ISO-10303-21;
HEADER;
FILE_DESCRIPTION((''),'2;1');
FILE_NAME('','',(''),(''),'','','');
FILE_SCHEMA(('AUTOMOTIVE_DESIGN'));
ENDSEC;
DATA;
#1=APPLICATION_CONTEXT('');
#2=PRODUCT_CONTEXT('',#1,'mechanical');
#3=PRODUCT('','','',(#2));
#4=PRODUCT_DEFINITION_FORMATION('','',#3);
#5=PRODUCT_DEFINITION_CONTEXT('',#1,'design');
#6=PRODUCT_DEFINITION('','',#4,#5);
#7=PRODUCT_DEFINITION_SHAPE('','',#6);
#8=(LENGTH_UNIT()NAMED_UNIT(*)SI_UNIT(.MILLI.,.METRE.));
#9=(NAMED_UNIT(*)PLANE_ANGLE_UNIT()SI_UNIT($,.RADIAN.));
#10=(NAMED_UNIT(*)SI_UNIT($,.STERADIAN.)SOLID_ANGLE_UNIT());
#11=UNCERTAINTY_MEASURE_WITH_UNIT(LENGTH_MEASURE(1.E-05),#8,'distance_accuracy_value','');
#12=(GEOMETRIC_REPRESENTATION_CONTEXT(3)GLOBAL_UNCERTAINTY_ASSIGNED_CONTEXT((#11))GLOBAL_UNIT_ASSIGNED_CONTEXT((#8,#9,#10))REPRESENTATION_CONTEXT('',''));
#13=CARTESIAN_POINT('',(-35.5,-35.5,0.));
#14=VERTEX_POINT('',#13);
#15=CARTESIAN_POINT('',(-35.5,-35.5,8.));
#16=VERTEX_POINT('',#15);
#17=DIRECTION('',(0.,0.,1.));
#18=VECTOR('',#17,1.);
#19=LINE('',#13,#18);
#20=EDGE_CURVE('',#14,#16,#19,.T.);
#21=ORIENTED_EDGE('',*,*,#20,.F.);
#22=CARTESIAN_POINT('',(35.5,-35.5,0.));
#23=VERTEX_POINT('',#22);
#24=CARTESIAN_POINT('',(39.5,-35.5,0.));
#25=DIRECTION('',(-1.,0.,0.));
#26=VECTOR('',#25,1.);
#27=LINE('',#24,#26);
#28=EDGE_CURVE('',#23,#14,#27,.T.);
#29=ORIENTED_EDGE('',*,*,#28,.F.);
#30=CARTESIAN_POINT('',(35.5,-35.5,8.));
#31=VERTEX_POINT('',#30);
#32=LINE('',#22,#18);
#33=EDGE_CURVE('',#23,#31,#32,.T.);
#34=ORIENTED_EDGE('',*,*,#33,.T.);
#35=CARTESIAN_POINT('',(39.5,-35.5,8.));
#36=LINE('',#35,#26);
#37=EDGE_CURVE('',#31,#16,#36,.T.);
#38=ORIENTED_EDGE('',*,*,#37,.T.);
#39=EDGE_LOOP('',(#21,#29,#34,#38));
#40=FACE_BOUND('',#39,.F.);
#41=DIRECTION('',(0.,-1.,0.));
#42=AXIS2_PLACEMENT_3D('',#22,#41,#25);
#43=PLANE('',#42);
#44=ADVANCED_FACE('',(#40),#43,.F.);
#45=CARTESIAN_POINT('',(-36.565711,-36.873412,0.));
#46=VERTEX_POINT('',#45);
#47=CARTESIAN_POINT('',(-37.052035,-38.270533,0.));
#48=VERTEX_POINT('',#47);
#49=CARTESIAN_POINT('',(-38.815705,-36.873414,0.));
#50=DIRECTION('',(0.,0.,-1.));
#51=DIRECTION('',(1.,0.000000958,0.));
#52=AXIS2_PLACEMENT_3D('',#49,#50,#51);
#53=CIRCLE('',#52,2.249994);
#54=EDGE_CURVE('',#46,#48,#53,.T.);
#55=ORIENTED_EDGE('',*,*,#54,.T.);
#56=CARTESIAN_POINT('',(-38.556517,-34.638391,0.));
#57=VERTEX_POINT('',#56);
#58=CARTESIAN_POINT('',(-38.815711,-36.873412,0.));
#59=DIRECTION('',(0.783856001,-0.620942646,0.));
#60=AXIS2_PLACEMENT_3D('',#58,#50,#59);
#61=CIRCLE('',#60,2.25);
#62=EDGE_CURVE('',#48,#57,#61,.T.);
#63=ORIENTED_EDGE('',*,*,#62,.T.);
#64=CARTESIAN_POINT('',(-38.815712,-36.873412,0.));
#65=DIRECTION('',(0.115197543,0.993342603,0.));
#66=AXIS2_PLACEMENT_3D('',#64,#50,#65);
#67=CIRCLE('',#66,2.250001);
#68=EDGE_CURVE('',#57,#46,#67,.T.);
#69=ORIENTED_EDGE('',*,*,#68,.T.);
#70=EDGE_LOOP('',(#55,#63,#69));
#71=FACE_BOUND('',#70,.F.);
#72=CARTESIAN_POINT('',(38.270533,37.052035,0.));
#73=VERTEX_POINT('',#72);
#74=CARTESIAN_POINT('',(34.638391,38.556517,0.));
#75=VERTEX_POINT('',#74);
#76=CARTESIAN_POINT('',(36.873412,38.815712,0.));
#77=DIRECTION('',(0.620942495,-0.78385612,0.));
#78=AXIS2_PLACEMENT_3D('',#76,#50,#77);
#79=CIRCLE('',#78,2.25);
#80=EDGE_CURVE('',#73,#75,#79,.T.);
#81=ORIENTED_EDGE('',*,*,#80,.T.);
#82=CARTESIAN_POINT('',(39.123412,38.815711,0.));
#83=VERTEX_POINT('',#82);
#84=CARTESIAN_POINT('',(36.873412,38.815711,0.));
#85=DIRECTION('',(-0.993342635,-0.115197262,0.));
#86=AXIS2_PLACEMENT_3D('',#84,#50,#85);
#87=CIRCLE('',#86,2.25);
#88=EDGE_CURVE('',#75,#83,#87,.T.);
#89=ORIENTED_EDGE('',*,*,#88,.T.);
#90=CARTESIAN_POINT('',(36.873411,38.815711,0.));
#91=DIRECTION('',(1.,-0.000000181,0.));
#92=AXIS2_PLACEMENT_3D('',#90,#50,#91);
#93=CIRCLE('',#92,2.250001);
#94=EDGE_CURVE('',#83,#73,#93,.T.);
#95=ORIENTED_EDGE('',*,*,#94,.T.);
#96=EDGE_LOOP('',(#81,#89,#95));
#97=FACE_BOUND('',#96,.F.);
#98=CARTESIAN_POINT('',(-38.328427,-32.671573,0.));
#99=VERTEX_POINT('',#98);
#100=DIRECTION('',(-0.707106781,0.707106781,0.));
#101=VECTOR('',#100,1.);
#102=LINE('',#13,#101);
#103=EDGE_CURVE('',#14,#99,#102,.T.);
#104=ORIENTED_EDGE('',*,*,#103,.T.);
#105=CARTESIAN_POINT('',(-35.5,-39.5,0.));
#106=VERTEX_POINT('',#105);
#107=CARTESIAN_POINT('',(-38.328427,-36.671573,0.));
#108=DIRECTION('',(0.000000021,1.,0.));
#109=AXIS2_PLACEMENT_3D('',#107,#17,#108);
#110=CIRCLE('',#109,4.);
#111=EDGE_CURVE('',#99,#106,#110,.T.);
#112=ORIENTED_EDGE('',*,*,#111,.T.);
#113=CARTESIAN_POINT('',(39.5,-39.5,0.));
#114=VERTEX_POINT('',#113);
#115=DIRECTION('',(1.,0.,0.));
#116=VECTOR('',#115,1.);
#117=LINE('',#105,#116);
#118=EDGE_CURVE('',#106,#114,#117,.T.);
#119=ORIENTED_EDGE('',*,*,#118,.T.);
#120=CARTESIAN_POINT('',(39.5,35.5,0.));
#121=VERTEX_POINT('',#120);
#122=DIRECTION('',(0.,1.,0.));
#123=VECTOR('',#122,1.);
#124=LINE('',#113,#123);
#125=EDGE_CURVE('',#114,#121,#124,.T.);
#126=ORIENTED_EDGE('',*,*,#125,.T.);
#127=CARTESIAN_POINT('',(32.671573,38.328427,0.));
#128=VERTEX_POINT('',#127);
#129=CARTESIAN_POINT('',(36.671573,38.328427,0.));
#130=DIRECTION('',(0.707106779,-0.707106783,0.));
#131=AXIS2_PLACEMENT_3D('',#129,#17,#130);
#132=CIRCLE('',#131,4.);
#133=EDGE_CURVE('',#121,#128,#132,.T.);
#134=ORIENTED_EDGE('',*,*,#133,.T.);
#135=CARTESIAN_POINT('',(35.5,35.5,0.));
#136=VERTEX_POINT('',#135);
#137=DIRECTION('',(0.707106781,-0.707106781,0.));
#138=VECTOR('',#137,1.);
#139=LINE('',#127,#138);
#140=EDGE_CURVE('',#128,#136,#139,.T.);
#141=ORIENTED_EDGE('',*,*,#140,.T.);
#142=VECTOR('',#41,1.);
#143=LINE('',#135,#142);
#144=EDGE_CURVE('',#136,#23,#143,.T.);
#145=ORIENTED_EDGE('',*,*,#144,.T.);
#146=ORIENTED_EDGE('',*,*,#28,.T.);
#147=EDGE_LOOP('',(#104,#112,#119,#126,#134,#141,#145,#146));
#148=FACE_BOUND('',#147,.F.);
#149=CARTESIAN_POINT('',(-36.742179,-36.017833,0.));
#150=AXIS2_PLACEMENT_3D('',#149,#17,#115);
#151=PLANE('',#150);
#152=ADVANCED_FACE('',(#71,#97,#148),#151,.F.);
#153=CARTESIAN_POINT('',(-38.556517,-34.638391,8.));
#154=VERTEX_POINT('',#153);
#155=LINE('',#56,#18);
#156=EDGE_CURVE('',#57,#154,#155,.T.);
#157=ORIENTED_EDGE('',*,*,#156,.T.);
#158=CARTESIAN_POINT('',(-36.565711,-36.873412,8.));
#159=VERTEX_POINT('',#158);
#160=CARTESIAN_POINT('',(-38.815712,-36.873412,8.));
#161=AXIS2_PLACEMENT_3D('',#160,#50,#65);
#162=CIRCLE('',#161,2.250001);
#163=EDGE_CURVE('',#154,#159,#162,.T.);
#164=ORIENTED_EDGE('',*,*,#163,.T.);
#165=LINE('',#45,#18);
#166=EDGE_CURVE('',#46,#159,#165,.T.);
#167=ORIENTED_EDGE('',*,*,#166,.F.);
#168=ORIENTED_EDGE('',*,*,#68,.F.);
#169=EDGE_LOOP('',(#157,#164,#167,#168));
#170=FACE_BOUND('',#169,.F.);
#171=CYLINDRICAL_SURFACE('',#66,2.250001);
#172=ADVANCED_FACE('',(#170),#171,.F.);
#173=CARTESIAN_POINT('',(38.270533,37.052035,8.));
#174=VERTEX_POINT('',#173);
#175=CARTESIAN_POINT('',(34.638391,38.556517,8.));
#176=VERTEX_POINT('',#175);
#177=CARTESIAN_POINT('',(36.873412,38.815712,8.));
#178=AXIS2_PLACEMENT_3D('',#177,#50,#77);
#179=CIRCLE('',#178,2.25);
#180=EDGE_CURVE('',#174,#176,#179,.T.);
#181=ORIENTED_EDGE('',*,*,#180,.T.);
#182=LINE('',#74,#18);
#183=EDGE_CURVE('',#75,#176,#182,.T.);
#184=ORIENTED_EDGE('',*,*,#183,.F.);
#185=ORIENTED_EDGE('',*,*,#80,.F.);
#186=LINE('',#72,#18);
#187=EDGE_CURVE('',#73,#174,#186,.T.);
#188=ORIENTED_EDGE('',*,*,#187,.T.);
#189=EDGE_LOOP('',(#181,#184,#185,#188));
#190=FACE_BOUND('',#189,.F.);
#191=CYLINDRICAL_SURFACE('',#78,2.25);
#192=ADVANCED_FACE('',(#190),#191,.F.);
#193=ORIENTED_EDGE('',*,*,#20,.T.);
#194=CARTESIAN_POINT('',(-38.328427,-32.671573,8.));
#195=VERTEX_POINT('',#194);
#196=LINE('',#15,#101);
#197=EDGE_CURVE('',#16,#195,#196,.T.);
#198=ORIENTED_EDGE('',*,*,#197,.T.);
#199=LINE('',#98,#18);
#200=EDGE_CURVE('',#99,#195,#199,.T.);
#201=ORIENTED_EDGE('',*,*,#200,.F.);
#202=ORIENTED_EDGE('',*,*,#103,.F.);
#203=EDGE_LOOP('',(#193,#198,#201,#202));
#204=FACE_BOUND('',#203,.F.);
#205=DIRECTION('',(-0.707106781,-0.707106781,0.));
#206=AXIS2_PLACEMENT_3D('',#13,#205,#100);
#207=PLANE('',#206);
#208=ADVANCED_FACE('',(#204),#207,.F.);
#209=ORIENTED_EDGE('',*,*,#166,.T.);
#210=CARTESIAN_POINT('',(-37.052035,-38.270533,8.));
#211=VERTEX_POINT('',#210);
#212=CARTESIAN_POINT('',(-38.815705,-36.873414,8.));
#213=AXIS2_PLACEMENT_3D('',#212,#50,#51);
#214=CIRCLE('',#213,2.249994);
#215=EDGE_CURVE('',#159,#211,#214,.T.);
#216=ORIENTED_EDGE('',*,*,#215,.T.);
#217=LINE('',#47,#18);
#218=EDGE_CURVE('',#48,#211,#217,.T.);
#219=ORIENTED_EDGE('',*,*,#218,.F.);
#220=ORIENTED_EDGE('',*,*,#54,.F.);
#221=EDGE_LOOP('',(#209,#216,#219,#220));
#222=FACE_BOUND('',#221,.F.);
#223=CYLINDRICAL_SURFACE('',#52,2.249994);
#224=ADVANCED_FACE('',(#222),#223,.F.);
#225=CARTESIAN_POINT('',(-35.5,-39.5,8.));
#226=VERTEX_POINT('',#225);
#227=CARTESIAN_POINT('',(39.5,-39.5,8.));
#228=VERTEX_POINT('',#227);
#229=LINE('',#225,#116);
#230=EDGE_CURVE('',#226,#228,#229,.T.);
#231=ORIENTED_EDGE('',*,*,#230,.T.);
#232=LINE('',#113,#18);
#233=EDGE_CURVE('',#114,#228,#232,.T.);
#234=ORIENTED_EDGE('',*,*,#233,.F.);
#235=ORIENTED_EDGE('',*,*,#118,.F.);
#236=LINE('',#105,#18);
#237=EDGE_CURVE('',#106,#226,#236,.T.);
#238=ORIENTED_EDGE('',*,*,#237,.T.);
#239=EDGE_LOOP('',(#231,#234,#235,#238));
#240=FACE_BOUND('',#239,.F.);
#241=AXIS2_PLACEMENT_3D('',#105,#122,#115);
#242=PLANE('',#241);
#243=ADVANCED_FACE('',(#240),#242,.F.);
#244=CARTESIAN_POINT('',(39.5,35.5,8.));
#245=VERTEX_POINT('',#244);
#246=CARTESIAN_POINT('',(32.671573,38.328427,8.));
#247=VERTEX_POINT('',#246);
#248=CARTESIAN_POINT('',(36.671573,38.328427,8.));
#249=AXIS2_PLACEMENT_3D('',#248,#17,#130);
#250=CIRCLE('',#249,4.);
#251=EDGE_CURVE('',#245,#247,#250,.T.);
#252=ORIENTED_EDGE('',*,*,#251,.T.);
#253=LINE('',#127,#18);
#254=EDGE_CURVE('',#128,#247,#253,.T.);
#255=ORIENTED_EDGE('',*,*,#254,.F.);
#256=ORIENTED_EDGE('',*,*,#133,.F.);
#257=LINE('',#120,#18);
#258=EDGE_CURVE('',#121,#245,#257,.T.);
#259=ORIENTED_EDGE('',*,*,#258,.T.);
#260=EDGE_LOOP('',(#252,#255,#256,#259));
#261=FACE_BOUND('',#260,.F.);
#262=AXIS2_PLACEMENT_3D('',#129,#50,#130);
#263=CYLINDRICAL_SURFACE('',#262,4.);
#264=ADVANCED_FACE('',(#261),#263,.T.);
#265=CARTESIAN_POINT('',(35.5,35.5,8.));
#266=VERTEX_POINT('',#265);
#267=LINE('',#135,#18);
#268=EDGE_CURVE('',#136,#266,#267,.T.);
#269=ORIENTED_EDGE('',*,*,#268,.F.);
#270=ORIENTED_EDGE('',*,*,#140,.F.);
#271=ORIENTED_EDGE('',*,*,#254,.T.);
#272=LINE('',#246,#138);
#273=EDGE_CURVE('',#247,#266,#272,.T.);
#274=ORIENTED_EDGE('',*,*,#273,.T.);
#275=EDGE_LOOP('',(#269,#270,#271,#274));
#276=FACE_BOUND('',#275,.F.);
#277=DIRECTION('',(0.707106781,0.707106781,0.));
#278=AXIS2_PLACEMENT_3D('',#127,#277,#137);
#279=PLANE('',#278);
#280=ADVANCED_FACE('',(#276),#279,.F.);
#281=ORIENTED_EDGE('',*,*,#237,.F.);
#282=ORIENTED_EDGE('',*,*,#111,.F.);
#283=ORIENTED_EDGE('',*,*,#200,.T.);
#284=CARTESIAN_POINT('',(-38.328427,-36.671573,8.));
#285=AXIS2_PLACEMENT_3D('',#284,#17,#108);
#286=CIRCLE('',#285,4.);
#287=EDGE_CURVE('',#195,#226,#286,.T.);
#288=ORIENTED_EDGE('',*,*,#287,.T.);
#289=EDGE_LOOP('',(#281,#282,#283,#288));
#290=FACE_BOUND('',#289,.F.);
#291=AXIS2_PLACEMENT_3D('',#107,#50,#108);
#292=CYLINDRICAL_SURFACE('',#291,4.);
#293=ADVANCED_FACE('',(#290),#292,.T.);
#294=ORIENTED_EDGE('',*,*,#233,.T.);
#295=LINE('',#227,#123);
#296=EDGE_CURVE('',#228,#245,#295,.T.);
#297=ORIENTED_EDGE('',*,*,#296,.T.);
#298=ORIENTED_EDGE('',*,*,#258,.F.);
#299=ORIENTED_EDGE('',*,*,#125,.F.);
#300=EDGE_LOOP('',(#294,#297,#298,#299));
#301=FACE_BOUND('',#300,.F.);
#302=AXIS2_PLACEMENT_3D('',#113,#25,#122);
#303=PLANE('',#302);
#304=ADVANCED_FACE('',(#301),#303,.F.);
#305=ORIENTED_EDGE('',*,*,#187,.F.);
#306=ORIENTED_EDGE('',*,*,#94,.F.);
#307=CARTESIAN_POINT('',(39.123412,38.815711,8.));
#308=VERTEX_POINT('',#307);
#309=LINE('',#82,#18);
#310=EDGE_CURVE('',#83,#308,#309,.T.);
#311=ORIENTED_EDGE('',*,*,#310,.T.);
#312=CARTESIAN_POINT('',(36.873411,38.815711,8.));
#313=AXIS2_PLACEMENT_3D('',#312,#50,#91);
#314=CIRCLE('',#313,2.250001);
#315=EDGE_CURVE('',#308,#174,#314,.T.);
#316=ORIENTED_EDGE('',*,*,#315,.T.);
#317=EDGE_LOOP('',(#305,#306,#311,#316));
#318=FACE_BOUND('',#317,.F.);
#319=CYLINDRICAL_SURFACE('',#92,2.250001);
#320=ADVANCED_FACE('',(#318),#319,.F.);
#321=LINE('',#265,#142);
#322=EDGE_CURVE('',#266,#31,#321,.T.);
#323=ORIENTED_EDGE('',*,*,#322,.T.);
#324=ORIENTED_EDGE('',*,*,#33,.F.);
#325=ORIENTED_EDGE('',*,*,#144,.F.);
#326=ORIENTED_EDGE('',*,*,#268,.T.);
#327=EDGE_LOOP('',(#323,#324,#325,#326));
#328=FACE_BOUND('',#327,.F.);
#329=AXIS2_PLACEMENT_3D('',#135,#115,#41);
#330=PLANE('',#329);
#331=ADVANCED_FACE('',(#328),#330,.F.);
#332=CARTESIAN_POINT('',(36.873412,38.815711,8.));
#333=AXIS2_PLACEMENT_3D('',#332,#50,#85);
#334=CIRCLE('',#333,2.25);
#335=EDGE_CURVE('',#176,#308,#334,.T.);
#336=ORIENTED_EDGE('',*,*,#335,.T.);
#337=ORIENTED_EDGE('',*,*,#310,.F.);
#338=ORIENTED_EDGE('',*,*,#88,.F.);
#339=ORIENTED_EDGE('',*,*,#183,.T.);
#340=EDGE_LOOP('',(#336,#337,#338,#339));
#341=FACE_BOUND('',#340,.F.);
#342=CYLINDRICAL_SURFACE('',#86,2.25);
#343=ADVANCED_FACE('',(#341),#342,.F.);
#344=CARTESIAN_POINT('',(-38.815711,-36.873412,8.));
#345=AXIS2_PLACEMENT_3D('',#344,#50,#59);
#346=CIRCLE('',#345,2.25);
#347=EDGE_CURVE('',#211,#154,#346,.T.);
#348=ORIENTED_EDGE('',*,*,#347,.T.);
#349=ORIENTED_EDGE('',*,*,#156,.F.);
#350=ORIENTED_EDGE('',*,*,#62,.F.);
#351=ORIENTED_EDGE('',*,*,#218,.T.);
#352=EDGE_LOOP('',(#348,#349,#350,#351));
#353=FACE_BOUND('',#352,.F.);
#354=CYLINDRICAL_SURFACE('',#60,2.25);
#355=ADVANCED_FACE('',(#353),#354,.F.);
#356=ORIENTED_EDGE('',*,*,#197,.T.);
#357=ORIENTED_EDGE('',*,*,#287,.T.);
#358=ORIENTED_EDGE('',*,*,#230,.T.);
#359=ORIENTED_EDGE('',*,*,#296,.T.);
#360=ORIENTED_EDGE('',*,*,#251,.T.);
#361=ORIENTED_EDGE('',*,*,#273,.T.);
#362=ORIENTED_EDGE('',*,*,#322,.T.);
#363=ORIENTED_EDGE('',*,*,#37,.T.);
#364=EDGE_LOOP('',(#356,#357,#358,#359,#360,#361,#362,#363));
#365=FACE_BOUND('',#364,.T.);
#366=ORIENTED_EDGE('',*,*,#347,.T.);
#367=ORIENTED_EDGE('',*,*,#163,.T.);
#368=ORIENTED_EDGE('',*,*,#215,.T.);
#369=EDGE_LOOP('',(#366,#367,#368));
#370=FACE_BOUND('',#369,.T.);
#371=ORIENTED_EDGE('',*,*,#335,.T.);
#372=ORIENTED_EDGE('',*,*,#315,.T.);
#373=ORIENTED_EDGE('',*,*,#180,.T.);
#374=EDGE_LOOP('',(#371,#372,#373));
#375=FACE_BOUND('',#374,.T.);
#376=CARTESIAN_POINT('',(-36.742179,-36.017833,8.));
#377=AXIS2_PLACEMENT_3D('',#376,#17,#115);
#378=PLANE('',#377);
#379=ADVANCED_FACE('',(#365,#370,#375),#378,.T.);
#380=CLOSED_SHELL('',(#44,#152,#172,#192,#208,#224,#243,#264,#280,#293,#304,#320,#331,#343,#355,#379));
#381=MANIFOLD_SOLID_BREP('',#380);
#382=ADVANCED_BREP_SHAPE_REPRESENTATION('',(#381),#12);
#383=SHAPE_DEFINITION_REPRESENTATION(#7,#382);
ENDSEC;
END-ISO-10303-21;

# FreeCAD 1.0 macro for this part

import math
import FreeCAD as App
import Part
import Sketcher

V = App.Vector
Q = App.Units.Quantity

doc = App.newDocument("Part")
body = doc.addObject("PartDesign::Body", "Body")

# Sketch on XY plane
sketch1 = body.newObject("Sketcher::SketchObject", "Sketch")
sketch1.AttachmentSupport = (doc.getObject("XY_Plane"), [""])
sketch1.MapMode = "FlatFace"
sketch1.addGeometry([
    Part.LineSegment(V(-35.5, -35.5, 0), V(-38.3, -32.7, 0)),  # 0
    Part.ArcOfCircle(Part.Circle(V(-38.3, -36.7, 0), V(0, 0, 1), 4), math.radians(90), math.radians(315)),  # 1
    Part.LineSegment(V(-35.5, -39.5, 0), V(39.5, -39.5, 0)),  # 2
    Part.LineSegment(V(39.5, -39.5, 0), V(39.5, 35.5, 0)),  # 3
    Part.ArcOfCircle(Part.Circle(V(36.7, 38.3, 0), V(0, 0, 1), 4), math.radians(-45), math.radians(180)),  # 4
    Part.LineSegment(V(32.7, 38.3, 0), V(35.5, 35.5, 0)),  # 5
    Part.LineSegment(V(35.5, 35.5, 0), V(35.5, -35.5, 0)),  # 6
    Part.LineSegment(V(35.5, -35.5, 0), V(-35.5, -35.5, 0)),  # 7
    Part.ArcOfCircle(Part.Circle(V(36.9, 38.8, 0), V(0, 0, 1), 2.3), math.radians(-173), math.radians(-52)),  # 8
    Part.ArcOfCircle(Part.Circle(V(36.9, 38.8, 0), V(0, 0, 1), 2.3), math.radians(0), math.radians(187)),  # 9
    Part.ArcOfCircle(Part.Circle(V(36.9, 38.8, 0), V(0, 0, 1), 2.3), math.radians(-52), math.radians(0)),  # 10
    Part.ArcOfCircle(Part.Circle(V(-38.8, -36.9, 0), V(0, 0, 1), 2.3), math.radians(0), math.radians(83)),  # 11
    Part.ArcOfCircle(Part.Circle(V(-38.8, -36.9, 0), V(0, 0, 1), 2.2), math.radians(-38), math.radians(0)),  # 12
    Part.ArcOfCircle(Part.Circle(V(-38.8, -36.9, 0), V(0, 0, 1), 2.3), math.radians(83), math.radians(322)),  # 13
], False)
sketch1.addConstraint([
    Sketcher.Constraint("Coincident", 0, 2, 1, 1),
    Sketcher.Constraint("Coincident", 1, 2, 2, 1),
    Sketcher.Constraint("Coincident", 2, 2, 3, 1),
    Sketcher.Constraint("Coincident", 3, 2, 4, 1),
    Sketcher.Constraint("Coincident", 4, 2, 5, 1),
    Sketcher.Constraint("Coincident", 5, 2, 6, 1),
    Sketcher.Constraint("Coincident", 6, 2, 7, 1),
    Sketcher.Constraint("Coincident", 7, 2, 0, 1),
    Sketcher.Constraint("Tangent", 8, 1, 9, 2),
    Sketcher.Constraint("Tangent", 9, 1, 10, 2),
    Sketcher.Constraint("Tangent", 10, 1, 8, 2),
    Sketcher.Constraint("Tangent", 11, 1, 12, 2),
    Sketcher.Constraint("Tangent", 12, 1, 13, 2),
    Sketcher.Constraint("Tangent", 13, 1, 11, 2),
    Sketcher.Constraint("Horizontal", 2),
    Sketcher.Constraint("Vertical", 3),
    Sketcher.Constraint("Vertical", 6),
    Sketcher.Constraint("Horizontal", 7),
    Sketcher.Constraint("Equal", 1, 4),
    Sketcher.Constraint("Equal", 10, 11),
    Sketcher.Constraint("Symmetric", 5, 2, 7, 2, -1, 1),
    Sketcher.Constraint("Parallel", 0, 5),
    Sketcher.Constraint("Horizontal", 3, 2, 5, 2),
    Sketcher.Constraint("Horizontal", 10, 3, 9, 1),
    Sketcher.Constraint("Horizontal", 13, 3, 11, 1),
    Sketcher.Constraint("Vertical", 1, 3, 0, 2),
    Sketcher.Constraint("Vertical", 1, 2, 7, 2),
    Sketcher.Constraint("Equal", 2, 3),
    Sketcher.Constraint("Equal", 7, 6),
    Sketcher.Constraint("Equal", 0, 5),
    Sketcher.Constraint("Radius", 1, Q("4 mm")),
    Sketcher.Constraint("DistanceX", 2, 1, 2, 2, Q("75 mm")),
    Sketcher.Constraint("DistanceX", 7, 2, 7, 1, Q("71 mm")),
    Sketcher.Constraint("Angle", 0, Q("135 deg")),
    Sketcher.Constraint("Radius", 8, Q("2.25 mm")),
    Sketcher.Constraint("DistanceY", -1, 1, 8, 3, Q("38.815712 mm")),
    Sketcher.Constraint("DistanceX", -1, 1, 9, 3, Q("36.873412 mm")),
    Sketcher.Constraint("DistanceX", 11, 3, -1, 1, Q("38.815712 mm")),
    Sketcher.Constraint("DistanceY", 13, 3, -1, 1, Q("36.873412 mm")),
    Sketcher.Constraint("DistanceX", -1, 1, 8, 1, Q("34.638391 mm")),
    Sketcher.Constraint("DistanceY", 13, 1, -1, 1, Q("34.638391 mm")),
    Sketcher.Constraint("DistanceX", 10, 1, 9, 1, Q("0.852879 mm")),
    Sketcher.Constraint("DistanceY", 12, 1, 11, 1, Q("1.397121 mm")),
])
pad1 = body.newObject("PartDesign::Pad", "Pad")
pad1.Profile = sketch1
pad1.Length = 8

doc.recompute()
